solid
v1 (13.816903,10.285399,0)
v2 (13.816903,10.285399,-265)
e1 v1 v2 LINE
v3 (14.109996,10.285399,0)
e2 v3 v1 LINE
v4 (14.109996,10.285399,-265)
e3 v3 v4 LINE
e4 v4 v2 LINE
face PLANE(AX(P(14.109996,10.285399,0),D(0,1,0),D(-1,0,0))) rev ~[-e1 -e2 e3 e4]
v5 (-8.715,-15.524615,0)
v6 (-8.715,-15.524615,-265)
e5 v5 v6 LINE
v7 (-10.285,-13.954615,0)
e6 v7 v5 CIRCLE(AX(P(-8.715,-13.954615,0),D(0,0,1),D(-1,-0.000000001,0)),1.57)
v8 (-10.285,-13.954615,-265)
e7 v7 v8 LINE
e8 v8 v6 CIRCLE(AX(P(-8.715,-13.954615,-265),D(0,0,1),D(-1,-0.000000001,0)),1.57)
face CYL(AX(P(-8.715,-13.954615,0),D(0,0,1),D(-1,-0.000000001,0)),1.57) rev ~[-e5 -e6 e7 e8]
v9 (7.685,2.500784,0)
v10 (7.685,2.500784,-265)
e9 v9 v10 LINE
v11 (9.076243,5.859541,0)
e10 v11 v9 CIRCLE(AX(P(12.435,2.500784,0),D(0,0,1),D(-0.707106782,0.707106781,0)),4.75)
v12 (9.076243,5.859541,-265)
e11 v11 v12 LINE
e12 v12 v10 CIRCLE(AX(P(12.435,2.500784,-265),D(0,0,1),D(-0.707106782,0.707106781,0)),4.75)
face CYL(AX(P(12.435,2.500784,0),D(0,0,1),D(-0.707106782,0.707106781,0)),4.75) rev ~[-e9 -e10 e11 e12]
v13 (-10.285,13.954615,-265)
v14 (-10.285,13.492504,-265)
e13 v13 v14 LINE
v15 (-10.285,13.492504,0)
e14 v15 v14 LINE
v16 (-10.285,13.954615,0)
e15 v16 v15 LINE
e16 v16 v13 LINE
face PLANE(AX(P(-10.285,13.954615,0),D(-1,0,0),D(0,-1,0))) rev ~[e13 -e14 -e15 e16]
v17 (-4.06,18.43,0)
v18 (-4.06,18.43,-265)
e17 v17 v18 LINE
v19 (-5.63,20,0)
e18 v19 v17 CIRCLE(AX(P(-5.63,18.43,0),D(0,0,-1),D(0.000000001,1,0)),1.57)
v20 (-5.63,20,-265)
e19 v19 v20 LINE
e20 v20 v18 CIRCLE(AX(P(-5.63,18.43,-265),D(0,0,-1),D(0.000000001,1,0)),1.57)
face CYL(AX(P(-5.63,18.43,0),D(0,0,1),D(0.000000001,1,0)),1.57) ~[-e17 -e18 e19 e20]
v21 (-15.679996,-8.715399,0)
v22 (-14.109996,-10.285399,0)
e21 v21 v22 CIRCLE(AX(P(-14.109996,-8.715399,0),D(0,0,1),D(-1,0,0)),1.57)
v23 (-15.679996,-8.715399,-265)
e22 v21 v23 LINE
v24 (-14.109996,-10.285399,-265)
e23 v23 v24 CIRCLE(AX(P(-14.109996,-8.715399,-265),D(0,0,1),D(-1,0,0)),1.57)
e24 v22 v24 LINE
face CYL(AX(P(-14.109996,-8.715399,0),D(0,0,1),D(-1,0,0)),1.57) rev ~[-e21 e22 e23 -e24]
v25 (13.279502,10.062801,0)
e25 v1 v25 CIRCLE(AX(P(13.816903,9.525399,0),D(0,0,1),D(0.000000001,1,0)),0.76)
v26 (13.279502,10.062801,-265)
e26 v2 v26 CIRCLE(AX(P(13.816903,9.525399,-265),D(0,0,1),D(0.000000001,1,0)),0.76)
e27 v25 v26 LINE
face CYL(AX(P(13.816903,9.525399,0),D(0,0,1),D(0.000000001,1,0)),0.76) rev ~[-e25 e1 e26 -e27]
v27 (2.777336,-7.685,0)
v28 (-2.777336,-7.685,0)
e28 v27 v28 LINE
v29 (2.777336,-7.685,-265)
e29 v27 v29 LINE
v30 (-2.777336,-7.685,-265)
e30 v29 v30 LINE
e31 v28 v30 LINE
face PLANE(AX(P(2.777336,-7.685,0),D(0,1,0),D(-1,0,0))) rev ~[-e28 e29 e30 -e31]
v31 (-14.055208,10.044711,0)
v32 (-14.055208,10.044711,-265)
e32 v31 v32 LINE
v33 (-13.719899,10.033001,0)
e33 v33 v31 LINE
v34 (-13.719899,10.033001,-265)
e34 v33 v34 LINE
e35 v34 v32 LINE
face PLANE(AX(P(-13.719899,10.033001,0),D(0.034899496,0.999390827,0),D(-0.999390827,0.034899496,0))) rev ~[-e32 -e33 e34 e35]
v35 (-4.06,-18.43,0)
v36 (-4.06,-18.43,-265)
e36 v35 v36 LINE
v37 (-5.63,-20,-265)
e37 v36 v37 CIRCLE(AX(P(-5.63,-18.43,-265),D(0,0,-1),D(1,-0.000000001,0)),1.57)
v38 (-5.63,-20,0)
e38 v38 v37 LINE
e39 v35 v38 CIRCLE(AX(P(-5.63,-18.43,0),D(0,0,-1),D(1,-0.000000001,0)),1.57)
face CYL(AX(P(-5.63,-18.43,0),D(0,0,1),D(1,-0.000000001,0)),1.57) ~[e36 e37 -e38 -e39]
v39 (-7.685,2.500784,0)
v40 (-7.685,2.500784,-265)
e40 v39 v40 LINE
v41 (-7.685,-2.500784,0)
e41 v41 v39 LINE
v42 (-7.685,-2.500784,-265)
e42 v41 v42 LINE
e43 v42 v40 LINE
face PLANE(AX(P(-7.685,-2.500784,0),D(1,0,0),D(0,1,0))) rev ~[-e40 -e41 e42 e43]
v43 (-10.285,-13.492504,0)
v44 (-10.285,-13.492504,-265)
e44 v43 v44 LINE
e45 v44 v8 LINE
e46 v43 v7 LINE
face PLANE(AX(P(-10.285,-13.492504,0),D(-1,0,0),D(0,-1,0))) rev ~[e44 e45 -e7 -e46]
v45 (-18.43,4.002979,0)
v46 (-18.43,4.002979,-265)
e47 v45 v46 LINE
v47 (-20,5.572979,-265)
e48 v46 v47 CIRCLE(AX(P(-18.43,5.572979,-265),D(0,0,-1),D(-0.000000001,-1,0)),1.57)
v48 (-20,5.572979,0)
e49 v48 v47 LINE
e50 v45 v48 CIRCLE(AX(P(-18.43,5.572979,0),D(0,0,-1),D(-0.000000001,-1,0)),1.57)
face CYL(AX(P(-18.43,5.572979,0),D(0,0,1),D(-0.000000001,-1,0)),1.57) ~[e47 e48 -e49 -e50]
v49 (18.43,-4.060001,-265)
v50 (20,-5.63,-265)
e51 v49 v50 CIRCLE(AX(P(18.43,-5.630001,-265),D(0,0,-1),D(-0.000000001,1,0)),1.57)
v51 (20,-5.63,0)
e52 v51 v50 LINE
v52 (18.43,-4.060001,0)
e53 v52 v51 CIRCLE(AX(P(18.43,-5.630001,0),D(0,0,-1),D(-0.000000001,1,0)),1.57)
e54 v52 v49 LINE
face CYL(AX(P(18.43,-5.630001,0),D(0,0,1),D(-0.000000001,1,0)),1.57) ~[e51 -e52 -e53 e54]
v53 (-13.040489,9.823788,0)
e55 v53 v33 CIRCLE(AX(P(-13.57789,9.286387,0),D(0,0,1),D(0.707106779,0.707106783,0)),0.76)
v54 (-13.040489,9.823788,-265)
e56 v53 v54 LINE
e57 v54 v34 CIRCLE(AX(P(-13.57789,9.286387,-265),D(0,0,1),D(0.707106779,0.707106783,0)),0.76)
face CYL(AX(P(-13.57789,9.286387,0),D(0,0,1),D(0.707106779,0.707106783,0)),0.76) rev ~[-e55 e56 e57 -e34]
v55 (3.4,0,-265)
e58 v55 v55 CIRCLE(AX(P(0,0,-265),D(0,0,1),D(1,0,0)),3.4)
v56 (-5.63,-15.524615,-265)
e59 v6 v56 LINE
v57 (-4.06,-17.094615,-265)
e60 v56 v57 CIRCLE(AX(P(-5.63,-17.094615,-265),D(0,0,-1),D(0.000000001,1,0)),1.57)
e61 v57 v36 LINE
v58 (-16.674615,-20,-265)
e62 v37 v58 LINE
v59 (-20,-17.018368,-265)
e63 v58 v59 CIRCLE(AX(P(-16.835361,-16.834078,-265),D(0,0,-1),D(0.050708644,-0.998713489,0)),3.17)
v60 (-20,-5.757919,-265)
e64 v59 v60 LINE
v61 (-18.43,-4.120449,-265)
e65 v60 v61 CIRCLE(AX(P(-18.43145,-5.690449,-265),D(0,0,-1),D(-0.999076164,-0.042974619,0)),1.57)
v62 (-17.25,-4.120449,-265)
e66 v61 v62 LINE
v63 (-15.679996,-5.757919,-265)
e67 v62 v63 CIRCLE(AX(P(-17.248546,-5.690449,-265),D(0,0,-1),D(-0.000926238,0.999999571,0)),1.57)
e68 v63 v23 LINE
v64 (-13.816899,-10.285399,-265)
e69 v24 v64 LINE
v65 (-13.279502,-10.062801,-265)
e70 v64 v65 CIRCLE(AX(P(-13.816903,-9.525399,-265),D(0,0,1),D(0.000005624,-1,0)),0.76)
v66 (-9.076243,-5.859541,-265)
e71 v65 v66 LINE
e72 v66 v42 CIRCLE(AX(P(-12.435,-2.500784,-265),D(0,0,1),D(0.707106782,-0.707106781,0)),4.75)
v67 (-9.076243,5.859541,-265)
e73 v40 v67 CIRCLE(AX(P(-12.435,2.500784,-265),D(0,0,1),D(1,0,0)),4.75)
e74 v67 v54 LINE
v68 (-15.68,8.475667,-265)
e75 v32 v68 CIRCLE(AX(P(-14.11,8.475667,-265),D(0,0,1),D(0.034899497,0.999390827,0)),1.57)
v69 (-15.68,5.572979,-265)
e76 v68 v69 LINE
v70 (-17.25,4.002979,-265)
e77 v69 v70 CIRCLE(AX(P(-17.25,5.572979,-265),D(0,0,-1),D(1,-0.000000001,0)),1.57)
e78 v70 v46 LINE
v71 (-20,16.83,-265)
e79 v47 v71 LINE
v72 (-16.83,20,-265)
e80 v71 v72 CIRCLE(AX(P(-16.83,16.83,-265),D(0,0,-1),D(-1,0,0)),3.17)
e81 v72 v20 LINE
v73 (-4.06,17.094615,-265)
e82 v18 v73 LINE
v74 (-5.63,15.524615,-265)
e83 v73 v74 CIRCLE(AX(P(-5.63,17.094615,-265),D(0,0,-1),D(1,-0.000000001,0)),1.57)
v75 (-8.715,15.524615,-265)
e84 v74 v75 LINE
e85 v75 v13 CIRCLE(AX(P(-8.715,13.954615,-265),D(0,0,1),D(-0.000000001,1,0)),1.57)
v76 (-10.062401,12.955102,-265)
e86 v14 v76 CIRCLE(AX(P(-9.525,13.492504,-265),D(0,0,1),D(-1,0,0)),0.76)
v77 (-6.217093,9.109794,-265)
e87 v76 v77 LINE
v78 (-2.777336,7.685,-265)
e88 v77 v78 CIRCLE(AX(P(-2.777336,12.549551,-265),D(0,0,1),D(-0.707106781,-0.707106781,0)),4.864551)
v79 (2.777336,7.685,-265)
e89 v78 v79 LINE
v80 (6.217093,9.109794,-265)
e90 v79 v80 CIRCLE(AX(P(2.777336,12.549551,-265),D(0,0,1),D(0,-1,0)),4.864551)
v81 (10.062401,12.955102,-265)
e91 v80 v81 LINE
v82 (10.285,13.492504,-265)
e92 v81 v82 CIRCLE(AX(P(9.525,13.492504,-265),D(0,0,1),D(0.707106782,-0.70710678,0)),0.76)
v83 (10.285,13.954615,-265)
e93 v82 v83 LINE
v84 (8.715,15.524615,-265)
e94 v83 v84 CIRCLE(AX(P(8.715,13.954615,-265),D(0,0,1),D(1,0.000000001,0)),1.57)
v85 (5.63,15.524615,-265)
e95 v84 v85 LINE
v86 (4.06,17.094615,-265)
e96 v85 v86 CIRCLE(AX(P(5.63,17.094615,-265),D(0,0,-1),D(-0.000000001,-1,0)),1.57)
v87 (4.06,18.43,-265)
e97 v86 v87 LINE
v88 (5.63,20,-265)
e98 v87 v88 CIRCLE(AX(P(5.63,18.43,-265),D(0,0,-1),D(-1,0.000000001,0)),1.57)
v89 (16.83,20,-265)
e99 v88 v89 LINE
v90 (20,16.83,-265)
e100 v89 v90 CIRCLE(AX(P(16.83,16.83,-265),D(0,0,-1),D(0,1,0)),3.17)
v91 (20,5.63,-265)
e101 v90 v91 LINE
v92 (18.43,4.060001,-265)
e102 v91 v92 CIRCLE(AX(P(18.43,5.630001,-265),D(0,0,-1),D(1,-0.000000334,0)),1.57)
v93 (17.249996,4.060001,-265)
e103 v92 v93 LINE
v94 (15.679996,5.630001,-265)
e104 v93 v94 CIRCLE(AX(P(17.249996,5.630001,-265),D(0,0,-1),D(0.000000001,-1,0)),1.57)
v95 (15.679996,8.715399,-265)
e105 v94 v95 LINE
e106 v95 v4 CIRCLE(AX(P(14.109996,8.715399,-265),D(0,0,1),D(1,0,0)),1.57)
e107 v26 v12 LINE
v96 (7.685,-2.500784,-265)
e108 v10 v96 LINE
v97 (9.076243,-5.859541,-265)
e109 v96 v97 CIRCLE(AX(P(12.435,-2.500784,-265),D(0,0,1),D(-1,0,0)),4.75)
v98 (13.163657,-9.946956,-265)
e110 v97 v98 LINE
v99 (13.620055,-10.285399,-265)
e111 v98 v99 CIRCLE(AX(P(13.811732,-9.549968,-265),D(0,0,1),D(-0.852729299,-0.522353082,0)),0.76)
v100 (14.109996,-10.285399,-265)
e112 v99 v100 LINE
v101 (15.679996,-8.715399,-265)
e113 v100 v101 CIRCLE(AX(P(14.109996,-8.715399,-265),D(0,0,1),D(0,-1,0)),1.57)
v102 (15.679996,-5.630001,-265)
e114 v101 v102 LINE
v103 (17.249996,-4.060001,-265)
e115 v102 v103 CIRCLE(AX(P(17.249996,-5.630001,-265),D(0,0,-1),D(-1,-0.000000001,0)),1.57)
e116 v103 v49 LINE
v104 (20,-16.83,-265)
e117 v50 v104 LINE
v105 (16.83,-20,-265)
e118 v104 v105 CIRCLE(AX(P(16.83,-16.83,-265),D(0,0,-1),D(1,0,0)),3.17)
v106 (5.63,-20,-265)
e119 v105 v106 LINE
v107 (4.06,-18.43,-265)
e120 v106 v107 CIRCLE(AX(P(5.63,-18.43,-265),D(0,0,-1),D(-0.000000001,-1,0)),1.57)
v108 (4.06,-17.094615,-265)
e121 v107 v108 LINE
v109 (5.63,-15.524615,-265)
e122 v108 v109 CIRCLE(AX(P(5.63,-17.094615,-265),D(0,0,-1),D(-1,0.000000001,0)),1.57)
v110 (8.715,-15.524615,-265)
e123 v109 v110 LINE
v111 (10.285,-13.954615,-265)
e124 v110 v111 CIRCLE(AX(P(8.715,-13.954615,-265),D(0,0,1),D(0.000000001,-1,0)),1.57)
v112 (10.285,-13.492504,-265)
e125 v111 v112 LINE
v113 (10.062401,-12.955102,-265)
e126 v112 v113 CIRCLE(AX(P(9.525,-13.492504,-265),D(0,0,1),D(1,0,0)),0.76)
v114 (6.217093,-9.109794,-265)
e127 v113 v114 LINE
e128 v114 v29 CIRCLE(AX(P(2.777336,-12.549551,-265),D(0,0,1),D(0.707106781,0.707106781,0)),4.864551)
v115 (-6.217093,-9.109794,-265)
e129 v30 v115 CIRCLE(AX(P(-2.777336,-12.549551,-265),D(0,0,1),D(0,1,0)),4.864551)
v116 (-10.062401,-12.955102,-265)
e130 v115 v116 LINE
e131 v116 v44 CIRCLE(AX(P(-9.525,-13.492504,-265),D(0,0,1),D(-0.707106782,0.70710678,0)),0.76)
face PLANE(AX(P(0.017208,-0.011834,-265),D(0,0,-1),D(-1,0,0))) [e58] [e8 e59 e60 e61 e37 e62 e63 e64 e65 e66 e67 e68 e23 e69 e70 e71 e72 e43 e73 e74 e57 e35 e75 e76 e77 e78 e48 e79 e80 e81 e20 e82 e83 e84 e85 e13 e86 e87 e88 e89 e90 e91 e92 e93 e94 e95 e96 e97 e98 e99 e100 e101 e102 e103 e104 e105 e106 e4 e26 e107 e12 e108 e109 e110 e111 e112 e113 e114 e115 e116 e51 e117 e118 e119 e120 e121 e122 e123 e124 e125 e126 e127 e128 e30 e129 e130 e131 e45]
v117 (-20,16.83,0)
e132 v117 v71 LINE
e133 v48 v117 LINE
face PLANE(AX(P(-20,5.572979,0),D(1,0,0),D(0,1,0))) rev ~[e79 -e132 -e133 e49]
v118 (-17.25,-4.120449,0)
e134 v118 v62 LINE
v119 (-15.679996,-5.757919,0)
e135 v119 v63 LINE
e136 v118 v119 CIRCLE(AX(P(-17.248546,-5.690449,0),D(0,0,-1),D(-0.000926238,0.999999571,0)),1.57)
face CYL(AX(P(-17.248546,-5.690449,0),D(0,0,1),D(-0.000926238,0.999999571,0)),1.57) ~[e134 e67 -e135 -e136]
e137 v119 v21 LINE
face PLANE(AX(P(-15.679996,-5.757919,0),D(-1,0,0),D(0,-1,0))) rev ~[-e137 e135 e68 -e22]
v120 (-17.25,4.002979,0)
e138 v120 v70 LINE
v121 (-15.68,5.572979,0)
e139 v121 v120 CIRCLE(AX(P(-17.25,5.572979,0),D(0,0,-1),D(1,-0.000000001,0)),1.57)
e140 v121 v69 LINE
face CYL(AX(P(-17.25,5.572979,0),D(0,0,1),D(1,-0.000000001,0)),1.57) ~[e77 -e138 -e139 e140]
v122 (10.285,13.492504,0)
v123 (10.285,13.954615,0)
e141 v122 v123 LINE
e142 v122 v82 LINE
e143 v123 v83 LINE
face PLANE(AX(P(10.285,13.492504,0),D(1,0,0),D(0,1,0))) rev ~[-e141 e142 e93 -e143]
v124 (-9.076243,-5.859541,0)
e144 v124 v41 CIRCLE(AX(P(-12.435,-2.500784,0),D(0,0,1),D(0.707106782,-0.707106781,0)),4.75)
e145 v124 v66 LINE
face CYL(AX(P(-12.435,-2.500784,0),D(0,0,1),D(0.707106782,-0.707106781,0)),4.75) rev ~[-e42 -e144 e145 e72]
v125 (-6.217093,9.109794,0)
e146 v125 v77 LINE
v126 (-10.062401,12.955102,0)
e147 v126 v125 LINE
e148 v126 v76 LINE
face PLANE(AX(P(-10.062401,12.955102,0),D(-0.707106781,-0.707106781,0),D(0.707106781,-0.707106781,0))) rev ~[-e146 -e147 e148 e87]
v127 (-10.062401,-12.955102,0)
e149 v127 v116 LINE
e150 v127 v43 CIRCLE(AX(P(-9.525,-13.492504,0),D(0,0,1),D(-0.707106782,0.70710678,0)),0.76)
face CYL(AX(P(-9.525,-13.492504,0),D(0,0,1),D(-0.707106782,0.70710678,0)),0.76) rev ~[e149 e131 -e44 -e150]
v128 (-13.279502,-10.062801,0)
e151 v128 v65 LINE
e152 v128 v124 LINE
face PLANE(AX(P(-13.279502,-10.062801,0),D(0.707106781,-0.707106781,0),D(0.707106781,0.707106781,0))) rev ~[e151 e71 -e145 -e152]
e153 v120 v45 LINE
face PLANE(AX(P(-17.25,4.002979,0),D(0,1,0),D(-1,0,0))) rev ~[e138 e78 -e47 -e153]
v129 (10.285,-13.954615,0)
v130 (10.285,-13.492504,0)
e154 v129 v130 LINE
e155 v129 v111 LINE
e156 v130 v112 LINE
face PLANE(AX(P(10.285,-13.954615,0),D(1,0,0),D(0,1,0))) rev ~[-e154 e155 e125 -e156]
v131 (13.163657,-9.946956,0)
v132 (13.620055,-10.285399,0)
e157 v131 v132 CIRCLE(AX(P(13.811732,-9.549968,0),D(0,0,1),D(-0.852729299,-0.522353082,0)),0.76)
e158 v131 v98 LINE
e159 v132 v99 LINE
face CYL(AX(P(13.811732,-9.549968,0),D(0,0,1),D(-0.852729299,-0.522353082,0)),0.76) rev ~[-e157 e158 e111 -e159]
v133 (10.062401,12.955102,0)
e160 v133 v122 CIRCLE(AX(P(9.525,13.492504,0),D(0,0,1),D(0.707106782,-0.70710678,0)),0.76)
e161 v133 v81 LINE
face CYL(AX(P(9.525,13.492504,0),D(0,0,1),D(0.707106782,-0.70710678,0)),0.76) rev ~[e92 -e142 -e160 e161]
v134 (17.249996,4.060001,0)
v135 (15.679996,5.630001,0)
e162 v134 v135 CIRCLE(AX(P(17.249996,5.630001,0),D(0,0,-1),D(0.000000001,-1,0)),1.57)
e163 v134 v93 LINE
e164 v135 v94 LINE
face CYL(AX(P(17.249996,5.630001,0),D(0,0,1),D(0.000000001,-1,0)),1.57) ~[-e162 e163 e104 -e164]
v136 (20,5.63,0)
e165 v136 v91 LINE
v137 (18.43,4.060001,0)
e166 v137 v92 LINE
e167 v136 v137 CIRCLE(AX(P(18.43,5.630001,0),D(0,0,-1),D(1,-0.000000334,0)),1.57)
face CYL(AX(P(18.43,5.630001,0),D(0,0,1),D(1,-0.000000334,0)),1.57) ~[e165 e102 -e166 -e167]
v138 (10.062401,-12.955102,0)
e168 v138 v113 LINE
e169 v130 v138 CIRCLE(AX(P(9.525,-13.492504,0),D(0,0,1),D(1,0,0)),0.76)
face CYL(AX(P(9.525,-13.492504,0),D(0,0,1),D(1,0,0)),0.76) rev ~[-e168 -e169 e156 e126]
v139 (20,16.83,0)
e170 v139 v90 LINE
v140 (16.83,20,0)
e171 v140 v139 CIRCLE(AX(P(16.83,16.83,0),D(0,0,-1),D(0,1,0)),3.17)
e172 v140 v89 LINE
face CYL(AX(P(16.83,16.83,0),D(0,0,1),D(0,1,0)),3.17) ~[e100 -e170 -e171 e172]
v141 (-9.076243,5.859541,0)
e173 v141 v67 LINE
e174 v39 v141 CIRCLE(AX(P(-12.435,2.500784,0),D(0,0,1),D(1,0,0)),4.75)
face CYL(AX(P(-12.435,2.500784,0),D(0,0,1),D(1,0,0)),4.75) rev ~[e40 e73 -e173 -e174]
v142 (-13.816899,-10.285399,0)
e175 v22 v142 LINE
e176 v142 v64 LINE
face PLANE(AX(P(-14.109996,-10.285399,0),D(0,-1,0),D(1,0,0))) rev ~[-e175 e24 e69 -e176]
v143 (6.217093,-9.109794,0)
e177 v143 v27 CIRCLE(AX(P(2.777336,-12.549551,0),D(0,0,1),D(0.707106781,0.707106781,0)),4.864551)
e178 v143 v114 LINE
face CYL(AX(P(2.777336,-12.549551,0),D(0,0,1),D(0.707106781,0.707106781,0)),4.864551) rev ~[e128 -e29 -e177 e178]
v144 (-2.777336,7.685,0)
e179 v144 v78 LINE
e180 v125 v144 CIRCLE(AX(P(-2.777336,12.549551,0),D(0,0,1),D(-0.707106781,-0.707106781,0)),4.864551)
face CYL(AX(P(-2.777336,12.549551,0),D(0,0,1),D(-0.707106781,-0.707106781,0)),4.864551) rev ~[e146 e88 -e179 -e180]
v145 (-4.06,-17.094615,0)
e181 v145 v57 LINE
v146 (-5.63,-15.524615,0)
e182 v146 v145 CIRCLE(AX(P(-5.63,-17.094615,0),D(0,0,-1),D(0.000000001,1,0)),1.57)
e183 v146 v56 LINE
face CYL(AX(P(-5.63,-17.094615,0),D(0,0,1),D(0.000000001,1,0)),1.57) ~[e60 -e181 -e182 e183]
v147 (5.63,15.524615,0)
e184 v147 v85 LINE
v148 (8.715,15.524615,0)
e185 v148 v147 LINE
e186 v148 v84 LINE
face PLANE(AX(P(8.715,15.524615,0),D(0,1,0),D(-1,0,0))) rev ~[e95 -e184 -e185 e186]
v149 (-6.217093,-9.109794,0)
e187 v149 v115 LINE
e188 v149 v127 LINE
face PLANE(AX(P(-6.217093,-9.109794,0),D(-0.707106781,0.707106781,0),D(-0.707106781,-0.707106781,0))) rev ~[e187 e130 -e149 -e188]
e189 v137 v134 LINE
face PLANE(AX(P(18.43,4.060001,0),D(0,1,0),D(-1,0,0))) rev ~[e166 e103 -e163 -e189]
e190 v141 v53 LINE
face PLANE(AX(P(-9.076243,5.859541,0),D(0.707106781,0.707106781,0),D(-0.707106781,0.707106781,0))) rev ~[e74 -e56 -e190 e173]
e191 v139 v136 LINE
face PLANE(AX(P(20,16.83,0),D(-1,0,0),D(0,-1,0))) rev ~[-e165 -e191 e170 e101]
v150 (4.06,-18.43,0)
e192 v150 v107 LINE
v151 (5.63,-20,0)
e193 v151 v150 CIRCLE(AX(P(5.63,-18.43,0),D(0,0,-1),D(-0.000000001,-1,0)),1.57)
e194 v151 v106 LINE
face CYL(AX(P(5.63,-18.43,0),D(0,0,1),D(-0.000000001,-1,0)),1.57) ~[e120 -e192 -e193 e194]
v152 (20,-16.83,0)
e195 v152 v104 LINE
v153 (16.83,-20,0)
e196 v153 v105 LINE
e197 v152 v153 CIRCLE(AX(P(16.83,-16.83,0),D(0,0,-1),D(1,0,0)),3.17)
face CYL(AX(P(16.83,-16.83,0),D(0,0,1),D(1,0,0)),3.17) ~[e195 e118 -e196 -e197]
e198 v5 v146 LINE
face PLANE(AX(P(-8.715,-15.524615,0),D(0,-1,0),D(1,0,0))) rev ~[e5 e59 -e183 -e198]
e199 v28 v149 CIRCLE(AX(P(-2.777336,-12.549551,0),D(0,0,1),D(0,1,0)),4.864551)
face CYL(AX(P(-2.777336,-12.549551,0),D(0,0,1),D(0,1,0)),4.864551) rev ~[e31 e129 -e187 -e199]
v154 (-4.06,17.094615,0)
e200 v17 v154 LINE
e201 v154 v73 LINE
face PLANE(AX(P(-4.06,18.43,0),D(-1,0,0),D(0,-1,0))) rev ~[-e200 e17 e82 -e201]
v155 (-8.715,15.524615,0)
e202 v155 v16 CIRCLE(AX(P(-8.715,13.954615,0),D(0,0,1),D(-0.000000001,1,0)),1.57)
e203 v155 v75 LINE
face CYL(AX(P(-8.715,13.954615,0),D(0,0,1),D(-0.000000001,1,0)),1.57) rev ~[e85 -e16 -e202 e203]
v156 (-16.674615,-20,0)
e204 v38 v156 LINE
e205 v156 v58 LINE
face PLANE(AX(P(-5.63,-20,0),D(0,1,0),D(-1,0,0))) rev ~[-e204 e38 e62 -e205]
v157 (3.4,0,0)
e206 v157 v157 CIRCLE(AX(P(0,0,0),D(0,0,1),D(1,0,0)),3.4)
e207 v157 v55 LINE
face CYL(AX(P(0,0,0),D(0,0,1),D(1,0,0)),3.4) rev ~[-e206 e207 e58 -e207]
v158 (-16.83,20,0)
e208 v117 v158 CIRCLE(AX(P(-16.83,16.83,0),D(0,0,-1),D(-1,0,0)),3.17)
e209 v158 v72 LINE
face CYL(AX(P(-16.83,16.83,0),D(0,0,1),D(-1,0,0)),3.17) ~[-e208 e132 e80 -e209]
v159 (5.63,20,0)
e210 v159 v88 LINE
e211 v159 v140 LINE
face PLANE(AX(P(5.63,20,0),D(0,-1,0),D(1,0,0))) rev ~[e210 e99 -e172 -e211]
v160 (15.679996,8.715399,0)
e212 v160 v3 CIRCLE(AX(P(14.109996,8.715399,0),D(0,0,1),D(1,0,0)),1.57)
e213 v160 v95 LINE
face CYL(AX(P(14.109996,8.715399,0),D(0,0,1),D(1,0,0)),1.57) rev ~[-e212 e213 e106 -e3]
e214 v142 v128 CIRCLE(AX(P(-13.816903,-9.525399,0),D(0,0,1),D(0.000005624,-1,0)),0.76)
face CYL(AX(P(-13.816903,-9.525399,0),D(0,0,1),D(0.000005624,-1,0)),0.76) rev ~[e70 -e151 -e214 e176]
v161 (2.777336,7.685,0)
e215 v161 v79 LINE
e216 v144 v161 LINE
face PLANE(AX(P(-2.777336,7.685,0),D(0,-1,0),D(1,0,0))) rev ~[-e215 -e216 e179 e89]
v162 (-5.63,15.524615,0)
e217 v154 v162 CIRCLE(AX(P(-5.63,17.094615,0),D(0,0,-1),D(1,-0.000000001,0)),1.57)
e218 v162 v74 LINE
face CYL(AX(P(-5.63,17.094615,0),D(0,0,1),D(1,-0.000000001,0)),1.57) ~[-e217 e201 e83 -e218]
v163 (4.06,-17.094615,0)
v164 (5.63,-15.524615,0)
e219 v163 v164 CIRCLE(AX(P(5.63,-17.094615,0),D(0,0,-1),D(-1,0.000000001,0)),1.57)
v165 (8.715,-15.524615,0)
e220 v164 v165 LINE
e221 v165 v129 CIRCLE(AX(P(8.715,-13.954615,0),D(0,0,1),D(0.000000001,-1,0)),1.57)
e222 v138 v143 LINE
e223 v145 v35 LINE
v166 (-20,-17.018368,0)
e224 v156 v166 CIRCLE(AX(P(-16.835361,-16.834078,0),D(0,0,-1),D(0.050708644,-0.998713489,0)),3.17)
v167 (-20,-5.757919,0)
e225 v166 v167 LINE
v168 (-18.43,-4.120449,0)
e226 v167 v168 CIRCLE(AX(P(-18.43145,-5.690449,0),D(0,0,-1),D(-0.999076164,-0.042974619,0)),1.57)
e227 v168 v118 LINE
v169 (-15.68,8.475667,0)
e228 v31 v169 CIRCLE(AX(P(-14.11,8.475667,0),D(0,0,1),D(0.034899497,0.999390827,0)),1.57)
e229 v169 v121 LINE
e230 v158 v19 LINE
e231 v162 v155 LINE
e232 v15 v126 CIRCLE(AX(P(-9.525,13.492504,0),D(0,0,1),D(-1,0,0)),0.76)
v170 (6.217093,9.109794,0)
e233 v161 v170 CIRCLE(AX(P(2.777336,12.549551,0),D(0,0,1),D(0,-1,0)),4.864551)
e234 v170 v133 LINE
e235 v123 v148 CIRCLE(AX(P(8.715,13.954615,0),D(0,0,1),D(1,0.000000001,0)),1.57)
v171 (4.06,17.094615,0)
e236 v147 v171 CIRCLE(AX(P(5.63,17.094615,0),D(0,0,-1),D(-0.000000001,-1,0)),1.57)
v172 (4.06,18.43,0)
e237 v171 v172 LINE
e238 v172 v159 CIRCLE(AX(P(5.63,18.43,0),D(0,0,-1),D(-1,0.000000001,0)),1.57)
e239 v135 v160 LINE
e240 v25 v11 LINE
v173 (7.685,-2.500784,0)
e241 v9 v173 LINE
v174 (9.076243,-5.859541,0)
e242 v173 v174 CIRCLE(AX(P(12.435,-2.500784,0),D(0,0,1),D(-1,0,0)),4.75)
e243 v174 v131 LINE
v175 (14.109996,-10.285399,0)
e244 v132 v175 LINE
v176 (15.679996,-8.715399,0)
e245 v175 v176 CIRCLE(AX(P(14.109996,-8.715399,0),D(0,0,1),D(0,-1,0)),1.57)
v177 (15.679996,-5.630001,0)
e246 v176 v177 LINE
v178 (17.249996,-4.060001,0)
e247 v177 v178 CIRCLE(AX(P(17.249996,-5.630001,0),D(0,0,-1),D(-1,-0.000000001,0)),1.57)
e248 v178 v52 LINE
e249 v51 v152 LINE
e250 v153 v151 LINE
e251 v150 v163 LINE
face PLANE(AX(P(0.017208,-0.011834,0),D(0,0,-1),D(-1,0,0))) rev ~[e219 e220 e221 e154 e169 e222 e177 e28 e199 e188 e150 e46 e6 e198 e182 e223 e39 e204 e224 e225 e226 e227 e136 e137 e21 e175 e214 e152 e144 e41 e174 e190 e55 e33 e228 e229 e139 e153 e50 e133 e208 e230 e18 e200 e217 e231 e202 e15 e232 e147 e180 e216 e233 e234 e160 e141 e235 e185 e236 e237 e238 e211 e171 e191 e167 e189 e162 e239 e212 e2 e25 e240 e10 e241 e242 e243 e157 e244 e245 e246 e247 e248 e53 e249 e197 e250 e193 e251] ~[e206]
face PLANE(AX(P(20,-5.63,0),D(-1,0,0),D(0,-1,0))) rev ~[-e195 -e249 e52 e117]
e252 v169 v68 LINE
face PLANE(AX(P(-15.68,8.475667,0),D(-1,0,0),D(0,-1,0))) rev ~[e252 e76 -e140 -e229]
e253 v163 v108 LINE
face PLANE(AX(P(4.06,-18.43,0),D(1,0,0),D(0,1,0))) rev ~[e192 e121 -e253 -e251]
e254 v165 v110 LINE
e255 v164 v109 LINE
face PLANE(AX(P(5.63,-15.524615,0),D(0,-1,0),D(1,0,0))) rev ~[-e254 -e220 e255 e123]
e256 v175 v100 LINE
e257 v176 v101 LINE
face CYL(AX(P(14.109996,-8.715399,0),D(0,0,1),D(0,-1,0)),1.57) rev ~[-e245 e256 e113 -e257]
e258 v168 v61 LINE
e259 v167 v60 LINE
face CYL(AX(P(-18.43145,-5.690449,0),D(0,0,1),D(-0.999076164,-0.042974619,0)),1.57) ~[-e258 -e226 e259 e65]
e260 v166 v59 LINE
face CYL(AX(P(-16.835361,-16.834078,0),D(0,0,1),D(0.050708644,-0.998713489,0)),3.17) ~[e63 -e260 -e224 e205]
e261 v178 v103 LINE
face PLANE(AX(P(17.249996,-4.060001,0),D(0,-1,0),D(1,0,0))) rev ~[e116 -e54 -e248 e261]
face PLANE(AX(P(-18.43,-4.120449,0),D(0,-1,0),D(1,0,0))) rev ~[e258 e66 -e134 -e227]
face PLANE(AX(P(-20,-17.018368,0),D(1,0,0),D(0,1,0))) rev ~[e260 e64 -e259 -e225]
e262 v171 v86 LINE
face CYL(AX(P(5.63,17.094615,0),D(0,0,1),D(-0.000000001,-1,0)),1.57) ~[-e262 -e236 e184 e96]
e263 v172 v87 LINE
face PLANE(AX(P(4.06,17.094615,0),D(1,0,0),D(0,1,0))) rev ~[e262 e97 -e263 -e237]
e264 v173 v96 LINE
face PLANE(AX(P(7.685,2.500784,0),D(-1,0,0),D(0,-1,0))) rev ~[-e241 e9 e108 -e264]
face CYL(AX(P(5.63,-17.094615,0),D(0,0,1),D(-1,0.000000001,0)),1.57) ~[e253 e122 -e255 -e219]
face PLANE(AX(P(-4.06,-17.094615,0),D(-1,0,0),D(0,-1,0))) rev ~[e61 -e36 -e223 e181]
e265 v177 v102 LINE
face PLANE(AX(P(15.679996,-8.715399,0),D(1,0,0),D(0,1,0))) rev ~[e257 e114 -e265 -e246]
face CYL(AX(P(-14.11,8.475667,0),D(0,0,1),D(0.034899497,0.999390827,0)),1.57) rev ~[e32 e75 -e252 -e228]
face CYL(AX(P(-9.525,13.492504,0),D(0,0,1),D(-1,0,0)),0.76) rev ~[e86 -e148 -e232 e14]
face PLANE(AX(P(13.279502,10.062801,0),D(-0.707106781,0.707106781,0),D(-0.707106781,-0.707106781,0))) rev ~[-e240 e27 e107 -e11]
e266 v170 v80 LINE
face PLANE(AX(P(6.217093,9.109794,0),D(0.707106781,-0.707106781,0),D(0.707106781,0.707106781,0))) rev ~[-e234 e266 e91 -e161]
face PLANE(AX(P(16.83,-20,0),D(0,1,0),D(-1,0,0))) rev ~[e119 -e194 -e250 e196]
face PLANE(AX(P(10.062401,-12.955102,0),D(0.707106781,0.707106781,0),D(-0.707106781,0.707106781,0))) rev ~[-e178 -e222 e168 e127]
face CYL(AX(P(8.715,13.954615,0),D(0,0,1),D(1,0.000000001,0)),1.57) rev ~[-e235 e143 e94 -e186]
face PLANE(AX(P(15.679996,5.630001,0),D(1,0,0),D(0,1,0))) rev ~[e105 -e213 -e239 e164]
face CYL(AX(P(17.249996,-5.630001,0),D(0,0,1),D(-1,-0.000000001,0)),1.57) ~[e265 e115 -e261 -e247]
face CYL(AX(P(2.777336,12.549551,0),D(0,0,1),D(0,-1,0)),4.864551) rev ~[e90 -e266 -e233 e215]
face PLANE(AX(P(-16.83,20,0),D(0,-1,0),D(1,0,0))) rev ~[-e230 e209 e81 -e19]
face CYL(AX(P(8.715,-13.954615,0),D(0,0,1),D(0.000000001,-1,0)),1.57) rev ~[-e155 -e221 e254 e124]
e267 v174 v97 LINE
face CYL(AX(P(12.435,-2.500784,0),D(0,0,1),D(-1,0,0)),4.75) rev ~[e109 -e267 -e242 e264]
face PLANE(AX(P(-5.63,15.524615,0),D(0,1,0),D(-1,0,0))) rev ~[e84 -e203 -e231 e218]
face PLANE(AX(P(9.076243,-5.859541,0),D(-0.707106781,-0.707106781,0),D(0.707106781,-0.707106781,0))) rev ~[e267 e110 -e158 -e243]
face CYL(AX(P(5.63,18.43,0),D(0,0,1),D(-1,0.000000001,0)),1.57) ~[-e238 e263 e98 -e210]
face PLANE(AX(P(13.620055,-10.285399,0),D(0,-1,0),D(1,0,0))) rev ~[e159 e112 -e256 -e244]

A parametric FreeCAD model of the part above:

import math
import FreeCAD as App
import Part
import Sketcher

V = App.Vector
Q = App.Units.Quantity

doc = App.newDocument("Part")
params = doc.addObject("Spreadsheet::Sheet", "Params")
for row, (alias, value) in enumerate([
    ("sketch1_diameter", "6.8 mm"),
    ("sketch1_radius", "1.57 mm"),
    ("sketch1_radius2", "0.76 mm"),
    ("sketch1_radius3", "3.17 mm"),
    ("sketch1_radius4", "4.75 mm"),
    ("pad1_length", "265 mm"),
], start=1):
    params.set(f"A{row}", alias)
    params.set(f"B{row}", "=" + value)
    params.setAlias(f"B{row}", alias)

body = doc.addObject("PartDesign::Body", "Body")

# Sketch on XY plane
sketch1 = body.newObject("Sketcher::SketchObject", "Sketch")
sketch1.AttachmentSupport = (doc.getObject("XY_Plane"), [""])
sketch1.MapMode = "FlatFace"
sketch1.addGeometry([
    Part.LineSegment(V(-5.63, -15.52, 0), V(-8.71, -15.52, 0)),  # 0
    Part.ArcOfCircle(Part.Circle(V(-8.71, -13.95, 0), V(0, 0, 1), 1.57), math.radians(-180), math.radians(-90)),  # 1
    Part.LineSegment(V(-10.29, -13.95, 0), V(-10.29, -13.49, 0)),  # 2
    Part.ArcOfCircle(Part.Circle(V(-9.52, -13.49, 0), V(0, 0, 1), 0.76), math.radians(135), math.radians(180)),  # 3
    Part.LineSegment(V(-10.06, -12.96, 0), V(-6.22, -9.11, 0)),  # 4
    Part.ArcOfCircle(Part.Circle(V(-2.78, -12.55, 0), V(0, 0, 1), 4.86), math.radians(90), math.radians(135)),  # 5
    Part.LineSegment(V(-2.78, -7.68, 0), V(2.78, -7.68, 0)),  # 6
    Part.ArcOfCircle(Part.Circle(V(2.78, -12.55, 0), V(0, 0, 1), 4.86), math.radians(45), math.radians(90)),  # 7
    Part.LineSegment(V(6.22, -9.11, 0), V(10.06, -12.96, 0)),  # 8
    Part.ArcOfCircle(Part.Circle(V(9.52, -13.49, 0), V(0, 0, 1), 0.76), math.radians(0), math.radians(45)),  # 9
    Part.LineSegment(V(10.29, -13.49, 0), V(10.29, -13.95, 0)),  # 10
    Part.ArcOfCircle(Part.Circle(V(8.71, -13.95, 0), V(0, 0, 1), 1.57), math.radians(-90), math.radians(0)),  # 11
    Part.LineSegment(V(8.71, -15.52, 0), V(5.63, -15.52, 0)),  # 12
    Part.ArcOfCircle(Part.Circle(V(5.63, -17.09, 0), V(0, 0, 1), 1.57), math.radians(90), math.radians(180)),  # 13
    Part.LineSegment(V(4.06, -17.09, 0), V(4.06, -18.43, 0)),  # 14
    Part.ArcOfCircle(Part.Circle(V(5.63, -18.43, 0), V(0, 0, 1), 1.57), math.radians(-180), math.radians(-90)),  # 15
    Part.LineSegment(V(5.63, -20, 0), V(16.83, -20, 0)),  # 16
    Part.ArcOfCircle(Part.Circle(V(16.83, -16.83, 0), V(0, 0, 1), 3.17), math.radians(-90), math.radians(0)),  # 17
    Part.LineSegment(V(20, -16.83, 0), V(20, -5.63, 0)),  # 18
    Part.ArcOfCircle(Part.Circle(V(18.43, -5.63, 0), V(0, 0, 1), 1.57), math.radians(0), math.radians(90)),  # 19
    Part.LineSegment(V(18.43, -4.06, 0), V(17.25, -4.06, 0)),  # 20
    Part.ArcOfCircle(Part.Circle(V(17.25, -5.63, 0), V(0, 0, 1), 1.57), math.radians(90), math.radians(180)),  # 21
    Part.LineSegment(V(15.68, -5.63, 0), V(15.68, -8.72, 0)),  # 22
    Part.ArcOfCircle(Part.Circle(V(14.11, -8.72, 0), V(0, 0, 1), 1.57), math.radians(-90), math.radians(0)),  # 23
    Part.LineSegment(V(14.11, -10.29, 0), V(13.62, -10.29, 0)),  # 24
    Part.ArcOfCircle(Part.Circle(V(13.81, -9.55, 0), V(0, 0, 1), 0.76), math.radians(-149), math.radians(-105)),  # 25
    Part.LineSegment(V(13.16, -9.95, 0), V(9.08, -5.86, 0)),  # 26
    Part.ArcOfCircle(Part.Circle(V(12.44, -2.5, 0), V(0, 0, 1), 4.75), math.radians(-180), math.radians(-135)),  # 27
    Part.LineSegment(V(7.68, -2.5, 0), V(7.68, 2.5, 0)),  # 28
    Part.ArcOfCircle(Part.Circle(V(12.44, 2.5, 0), V(0, 0, 1), 4.75), math.radians(135), math.radians(180)),  # 29
    Part.LineSegment(V(9.08, 5.86, 0), V(13.28, 10.06, 0)),  # 30
    Part.ArcOfCircle(Part.Circle(V(13.82, 9.53, 0), V(0, 0, 1), 0.76), math.radians(90), math.radians(135)),  # 31
    Part.LineSegment(V(13.82, 10.29, 0), V(14.11, 10.29, 0)),  # 32
    Part.ArcOfCircle(Part.Circle(V(14.11, 8.72, 0), V(0, 0, 1), 1.57), math.radians(0), math.radians(90)),  # 33
    Part.LineSegment(V(15.68, 8.72, 0), V(15.68, 5.63, 0)),  # 34
    Part.ArcOfCircle(Part.Circle(V(17.25, 5.63, 0), V(0, 0, 1), 1.57), math.radians(180), math.radians(270)),  # 35
    Part.LineSegment(V(17.25, 4.06, 0), V(18.43, 4.06, 0)),  # 36
    Part.ArcOfCircle(Part.Circle(V(18.43, 5.63, 0), V(0, 0, 1), 1.57), math.radians(-90), math.radians(0)),  # 37
    Part.LineSegment(V(20, 5.63, 0), V(20, 16.83, 0)),  # 38
    Part.ArcOfCircle(Part.Circle(V(16.83, 16.83, 0), V(0, 0, 1), 3.17), math.radians(0), math.radians(90)),  # 39
    Part.LineSegment(V(16.83, 20, 0), V(5.63, 20, 0)),  # 40
    Part.ArcOfCircle(Part.Circle(V(5.63, 18.43, 0), V(0, 0, 1), 1.57), math.radians(90), math.radians(180)),  # 41
    Part.LineSegment(V(4.06, 18.43, 0), V(4.06, 17.09, 0)),  # 42
    Part.ArcOfCircle(Part.Circle(V(5.63, 17.09, 0), V(0, 0, 1), 1.57), math.radians(-180), math.radians(-90)),  # 43
    Part.LineSegment(V(5.63, 15.52, 0), V(8.71, 15.52, 0)),  # 44
    Part.ArcOfCircle(Part.Circle(V(8.71, 13.95, 0), V(0, 0, 1), 1.57), math.radians(0), math.radians(90)),  # 45
    Part.LineSegment(V(10.29, 13.95, 0), V(10.29, 13.49, 0)),  # 46
    Part.ArcOfCircle(Part.Circle(V(9.52, 13.49, 0), V(0, 0, 1), 0.76), math.radians(-45), math.radians(0)),  # 47
    Part.LineSegment(V(10.06, 12.96, 0), V(6.22, 9.11, 0)),  # 48
    Part.ArcOfCircle(Part.Circle(V(2.78, 12.55, 0), V(0, 0, 1), 4.86), math.radians(-90), math.radians(-45)),  # 49
    Part.LineSegment(V(2.78, 7.68, 0), V(-2.78, 7.68, 0)),  # 50
    Part.ArcOfCircle(Part.Circle(V(-2.78, 12.55, 0), V(0, 0, 1), 4.86), math.radians(-135), math.radians(-90)),  # 51
    Part.LineSegment(V(-6.22, 9.11, 0), V(-10.06, 12.96, 0)),  # 52
    Part.ArcOfCircle(Part.Circle(V(-9.52, 13.49, 0), V(0, 0, 1), 0.76), math.radians(180), math.radians(225)),  # 53
    Part.LineSegment(V(-10.29, 13.49, 0), V(-10.29, 13.95, 0)),  # 54
    Part.ArcOfCircle(Part.Circle(V(-8.71, 13.95, 0), V(0, 0, 1), 1.57), math.radians(90), math.radians(180)),  # 55
    Part.LineSegment(V(-8.71, 15.52, 0), V(-5.63, 15.52, 0)),  # 56
    Part.ArcOfCircle(Part.Circle(V(-5.63, 17.09, 0), V(0, 0, 1), 1.57), math.radians(-90), math.radians(0)),  # 57
    Part.LineSegment(V(-4.06, 17.09, 0), V(-4.06, 18.43, 0)),  # 58
    Part.ArcOfCircle(Part.Circle(V(-5.63, 18.43, 0), V(0, 0, 1), 1.57), math.radians(0), math.radians(90)),  # 59
    Part.LineSegment(V(-5.63, 20, 0), V(-16.83, 20, 0)),  # 60
    Part.ArcOfCircle(Part.Circle(V(-16.83, 16.83, 0), V(0, 0, 1), 3.17), math.radians(90), math.radians(180)),  # 61
    Part.LineSegment(V(-20, 16.83, 0), V(-20, 5.57, 0)),  # 62
    Part.ArcOfCircle(Part.Circle(V(-18.43, 5.57, 0), V(0, 0, 1), 1.57), math.radians(-180), math.radians(-90)),  # 63
    Part.LineSegment(V(-18.43, 4, 0), V(-17.25, 4, 0)),  # 64
    Part.ArcOfCircle(Part.Circle(V(-17.25, 5.57, 0), V(0, 0, 1), 1.57), math.radians(-90), math.radians(0)),  # 65
    Part.LineSegment(V(-15.68, 5.57, 0), V(-15.68, 8.48, 0)),  # 66
    Part.ArcOfCircle(Part.Circle(V(-14.11, 8.48, 0), V(0, 0, 1), 1.57), math.radians(88), math.radians(180)),  # 67
    Part.LineSegment(V(-14.06, 10.04, 0), V(-13.72, 10.03, 0)),  # 68
    Part.ArcOfCircle(Part.Circle(V(-13.58, 9.29, 0), V(0, 0, 1), 0.76), math.radians(45), math.radians(101)),  # 69
    Part.LineSegment(V(-13.04, 9.82, 0), V(-9.08, 5.86, 0)),  # 70
    Part.ArcOfCircle(Part.Circle(V(-12.44, 2.5, 0), V(0, 0, 1), 4.75), math.radians(0), math.radians(45)),  # 71
    Part.LineSegment(V(-7.68, 2.5, 0), V(-7.68, -2.5, 0)),  # 72
    Part.ArcOfCircle(Part.Circle(V(-12.44, -2.5, 0), V(0, 0, 1), 4.75), math.radians(-45), math.radians(0)),  # 73
    Part.LineSegment(V(-9.08, -5.86, 0), V(-13.28, -10.06, 0)),  # 74
    Part.ArcOfCircle(Part.Circle(V(-13.82, -9.53, 0), V(0, 0, 1), 0.76), math.radians(-90), math.radians(-45)),  # 75
    Part.LineSegment(V(-13.82, -10.29, 0), V(-14.11, -10.29, 0)),  # 76
    Part.ArcOfCircle(Part.Circle(V(-14.11, -8.72, 0), V(0, 0, 1), 1.57), math.radians(180), math.radians(270)),  # 77
    Part.LineSegment(V(-15.68, -8.72, 0), V(-15.68, -5.76, 0)),  # 78
    Part.ArcOfCircle(Part.Circle(V(-17.25, -5.69, 0), V(0, 0, 1), 1.57), math.radians(-2), math.radians(90)),  # 79
    Part.LineSegment(V(-17.25, -4.12, 0), V(-18.43, -4.12, 0)),  # 80
    Part.ArcOfCircle(Part.Circle(V(-18.43, -5.69, 0), V(0, 0, 1), 1.57), math.radians(90), math.radians(182)),  # 81
    Part.LineSegment(V(-20, -5.76, 0), V(-20, -17.02, 0)),  # 82
    Part.ArcOfCircle(Part.Circle(V(-16.84, -16.83, 0), V(0, 0, 1), 3.17), math.radians(-177), math.radians(-87)),  # 83
    Part.LineSegment(V(-16.67, -20, 0), V(-5.63, -20, 0)),  # 84
    Part.ArcOfCircle(Part.Circle(V(-5.63, -18.43, 0), V(0, 0, 1), 1.57), math.radians(-90), math.radians(0)),  # 85
    Part.LineSegment(V(-4.06, -18.43, 0), V(-4.06, -17.09, 0)),  # 86
    Part.ArcOfCircle(Part.Circle(V(-5.63, -17.09, 0), V(0, 0, 1), 1.57), math.radians(0), math.radians(90)),  # 87
    Part.Circle(V(0, 0, 0), V(0, 0, 1), 3.4),  # 88
], False)
sketch1.addConstraint([
    Sketcher.Constraint("Tangent", 0, 2, 1, 2),
    Sketcher.Constraint("Tangent", 1, 1, 2, 1),
    Sketcher.Constraint("Tangent", 2, 2, 3, 2),
    Sketcher.Constraint("Tangent", 3, 1, 4, 1),
    Sketcher.Constraint("Tangent", 4, 2, 5, 2),
    Sketcher.Constraint("Tangent", 5, 1, 6, 1),
    Sketcher.Constraint("Tangent", 6, 2, 7, 2),
    Sketcher.Constraint("Tangent", 7, 1, 8, 1),
    Sketcher.Constraint("Tangent", 8, 2, 9, 2),
    Sketcher.Constraint("Tangent", 9, 1, 10, 1),
    Sketcher.Constraint("Tangent", 10, 2, 11, 2),
    Sketcher.Constraint("Tangent", 11, 1, 12, 1),
    Sketcher.Constraint("Tangent", 12, 2, 13, 1),
    Sketcher.Constraint("Tangent", 13, 2, 14, 1),
    Sketcher.Constraint("Tangent", 14, 2, 15, 1),
    Sketcher.Constraint("Tangent", 15, 2, 16, 1),
    Sketcher.Constraint("Tangent", 16, 2, 17, 1),
    Sketcher.Constraint("Tangent", 17, 2, 18, 1),
    Sketcher.Constraint("Tangent", 18, 2, 19, 1),
    Sketcher.Constraint("Tangent", 19, 2, 20, 1),
    Sketcher.Constraint("Tangent", 20, 2, 21, 1),
    Sketcher.Constraint("Tangent", 21, 2, 22, 1),
    Sketcher.Constraint("Tangent", 22, 2, 23, 2),
    Sketcher.Constraint("Tangent", 23, 1, 24, 1),
    Sketcher.Constraint("Coincident", 24, 2, 25, 2),
    Sketcher.Constraint("Coincident", 25, 1, 26, 1),
    Sketcher.Constraint("Tangent", 26, 2, 27, 2),
    Sketcher.Constraint("Tangent", 27, 1, 28, 1),
    Sketcher.Constraint("Tangent", 28, 2, 29, 2),
    Sketcher.Constraint("Tangent", 29, 1, 30, 1),
    Sketcher.Constraint("Tangent", 30, 2, 31, 2),
    Sketcher.Constraint("Tangent", 31, 1, 32, 1),
    Sketcher.Constraint("Tangent", 32, 2, 33, 2),
    Sketcher.Constraint("Tangent", 33, 1, 34, 1),
    Sketcher.Constraint("Tangent", 34, 2, 35, 1),
    Sketcher.Constraint("Tangent", 35, 2, 36, 1),
    Sketcher.Constraint("Tangent", 36, 2, 37, 1),
    Sketcher.Constraint("Tangent", 37, 2, 38, 1),
    Sketcher.Constraint("Tangent", 38, 2, 39, 1),
    Sketcher.Constraint("Tangent", 39, 2, 40, 1),
    Sketcher.Constraint("Tangent", 40, 2, 41, 1),
    Sketcher.Constraint("Tangent", 41, 2, 42, 1),
    Sketcher.Constraint("Tangent", 42, 2, 43, 1),
    Sketcher.Constraint("Tangent", 43, 2, 44, 1),
    Sketcher.Constraint("Tangent", 44, 2, 45, 2),
    Sketcher.Constraint("Tangent", 45, 1, 46, 1),
    Sketcher.Constraint("Tangent", 46, 2, 47, 2),
    Sketcher.Constraint("Tangent", 47, 1, 48, 1),
    Sketcher.Constraint("Tangent", 48, 2, 49, 2),
    Sketcher.Constraint("Tangent", 49, 1, 50, 1),
    Sketcher.Constraint("Tangent", 50, 2, 51, 2),
    Sketcher.Constraint("Tangent", 51, 1, 52, 1),
    Sketcher.Constraint("Tangent", 52, 2, 53, 2),
    Sketcher.Constraint("Tangent", 53, 1, 54, 1),
    Sketcher.Constraint("Tangent", 54, 2, 55, 2),
    Sketcher.Constraint("Tangent", 55, 1, 56, 1),
    Sketcher.Constraint("Tangent", 56, 2, 57, 1),
    Sketcher.Constraint("Tangent", 57, 2, 58, 1),
    Sketcher.Constraint("Tangent", 58, 2, 59, 1),
    Sketcher.Constraint("Tangent", 59, 2, 60, 1),
    Sketcher.Constraint("Tangent", 60, 2, 61, 1),
    Sketcher.Constraint("Tangent", 61, 2, 62, 1),
    Sketcher.Constraint("Tangent", 62, 2, 63, 1),
    Sketcher.Constraint("Tangent", 63, 2, 64, 1),
    Sketcher.Constraint("Tangent", 64, 2, 65, 1),
    Sketcher.Constraint("Tangent", 65, 2, 66, 1),
    Sketcher.Constraint("Tangent", 66, 2, 67, 2),
    Sketcher.Constraint("Tangent", 67, 1, 68, 1),
    Sketcher.Constraint("Coincident", 68, 2, 69, 2),
    Sketcher.Constraint("Tangent", 69, 1, 70, 1),
    Sketcher.Constraint("Tangent", 70, 2, 71, 2),
    Sketcher.Constraint("Tangent", 71, 1, 72, 1),
    Sketcher.Constraint("Tangent", 72, 2, 73, 2),
    Sketcher.Constraint("Tangent", 73, 1, 74, 1),
    Sketcher.Constraint("Tangent", 74, 2, 75, 2),
    Sketcher.Constraint("Coincident", 75, 1, 76, 1),
    Sketcher.Constraint("Tangent", 76, 2, 77, 2),
    Sketcher.Constraint("Tangent", 77, 1, 78, 1),
    Sketcher.Constraint("Coincident", 78, 2, 79, 1),
    Sketcher.Constraint("Coincident", 79, 2, 80, 1),
    Sketcher.Constraint("Coincident", 80, 2, 81, 1),
    Sketcher.Constraint("Coincident", 81, 2, 82, 1),
    Sketcher.Constraint("Coincident", 82, 2, 83, 1),
    Sketcher.Constraint("Coincident", 83, 2, 84, 1),
    Sketcher.Constraint("Tangent", 84, 2, 85, 1),
    Sketcher.Constraint("Tangent", 85, 2, 86, 1),
    Sketcher.Constraint("Tangent", 86, 2, 87, 1),
    Sketcher.Constraint("Tangent", 87, 2, 0, 1),
    Sketcher.Constraint("Horizontal", 0),
    Sketcher.Constraint("Vertical", 2),
    Sketcher.Constraint("Horizontal", 6),
    Sketcher.Constraint("Vertical", 10),
    Sketcher.Constraint("Horizontal", 12),
    Sketcher.Constraint("Vertical", 14),
    Sketcher.Constraint("Horizontal", 16),
    Sketcher.Constraint("Vertical", 18),
    Sketcher.Constraint("Horizontal", 20),
    Sketcher.Constraint("Vertical", 22),
    Sketcher.Constraint("Horizontal", 24),
    Sketcher.Constraint("Vertical", 28),
    Sketcher.Constraint("Horizontal", 32),
    Sketcher.Constraint("Vertical", 34),
    Sketcher.Constraint("Horizontal", 36),
    Sketcher.Constraint("Vertical", 38),
    Sketcher.Constraint("Horizontal", 40),
    Sketcher.Constraint("Vertical", 42),
    Sketcher.Constraint("Horizontal", 44),
    Sketcher.Constraint("Vertical", 46),
    Sketcher.Constraint("Horizontal", 50),
    Sketcher.Constraint("Vertical", 54),
    Sketcher.Constraint("Horizontal", 56),
    Sketcher.Constraint("Vertical", 58),
    Sketcher.Constraint("Horizontal", 60),
    Sketcher.Constraint("Vertical", 62),
    Sketcher.Constraint("Horizontal", 64),
    Sketcher.Constraint("Vertical", 66),
    Sketcher.Constraint("Vertical", 72),
    Sketcher.Constraint("Horizontal", 76),
    Sketcher.Constraint("Vertical", 78),
    Sketcher.Constraint("Horizontal", 80),
    Sketcher.Constraint("Vertical", 82),
    Sketcher.Constraint("Horizontal", 84),
    Sketcher.Constraint("Vertical", 86),
    Sketcher.Constraint("Coincident", 88, 3, -1, 1),
    Sketcher.Constraint("Equal", 5, 7),
    Sketcher.Constraint("Equal", 3, 9),
    Sketcher.Constraint("Equal", 1, 11),
    Sketcher.Constraint("Equal", 11, 13),
    Sketcher.Constraint("Equal", 13, 15),
    Sketcher.Constraint("Equal", 15, 19),
    Sketcher.Constraint("Equal", 19, 21),
    Sketcher.Constraint("Equal", 21, 23),
    Sketcher.Constraint("Equal", 9, 25),
    Sketcher.Constraint("Equal", 27, 29),
    Sketcher.Constraint("Equal", 25, 31),
    Sketcher.Constraint("Equal", 23, 33),
    Sketcher.Constraint("Equal", 33, 35),
    Sketcher.Constraint("Equal", 35, 37),
    Sketcher.Constraint("Equal", 17, 39),
    Sketcher.Constraint("Equal", 37, 41),
    Sketcher.Constraint("Equal", 41, 43),
    Sketcher.Constraint("Equal", 43, 45),
    Sketcher.Constraint("Equal", 31, 47),
    Sketcher.Constraint("Equal", 7, 49),
    Sketcher.Constraint("Equal", 49, 51),
    Sketcher.Constraint("Equal", 47, 53),
    Sketcher.Constraint("Equal", 45, 55),
    Sketcher.Constraint("Equal", 55, 57),
    Sketcher.Constraint("Equal", 57, 59),
    Sketcher.Constraint("Equal", 39, 61),
    Sketcher.Constraint("Equal", 59, 63),
    Sketcher.Constraint("Equal", 63, 65),
    Sketcher.Constraint("Equal", 65, 67),
    Sketcher.Constraint("Equal", 53, 69),
    Sketcher.Constraint("Equal", 29, 71),
    Sketcher.Constraint("Equal", 71, 73),
    Sketcher.Constraint("Equal", 69, 75),
    Sketcher.Constraint("Equal", 67, 77),
    Sketcher.Constraint("Equal", 77, 79),
    Sketcher.Constraint("Equal", 79, 81),
    Sketcher.Constraint("Equal", 61, 83),
    Sketcher.Constraint("Equal", 81, 85),
    Sketcher.Constraint("Equal", 85, 87),
    Sketcher.Constraint("Symmetric", 1, 3, 45, 3, -1, 1),
    Sketcher.Constraint("Symmetric", 5, 3, 49, 3, -1, 1),
    Sketcher.Constraint("Symmetric", 9, 3, 53, 3, -1, 1),
    Sketcher.Constraint("Symmetric", 13, 3, 57, 3, -1, 1),
    Sketcher.Constraint("Symmetric", 17, 3, 61, 3, -1, 1),
    Sketcher.Constraint("Symmetric", 27, 3, 71, 3, -1, 1),
    Sketcher.Constraint("Symmetric", 31, 3, 75, 3, -1, 1),
    Sketcher.Constraint("Symmetric", 41, 3, 85, 3, -1, 1),
    Sketcher.Constraint("Symmetric", 3, 3, 9, 3, -2),
    Sketcher.Constraint("Symmetric", 43, 3, 57, 3, -2),
    Sketcher.Constraint("Symmetric", 39, 3, 61, 3, -2),
    Sketcher.Constraint("Symmetric", 23, 3, 77, 3, -2),
    Sketcher.Constraint("Symmetric", 48, 2, 51, 1, -2),
    Sketcher.Constraint("Symmetric", 29, 1, 70, 2, -2),
    Sketcher.Constraint("Symmetric", 26, 2, 73, 1, -2),
    Sketcher.Constraint("Symmetric", 21, 3, 35, 3, -1),
    Sketcher.Constraint("Perpendicular", 4, 8),
    Sketcher.Constraint("Parallel", 8, 26),
    Sketcher.Constraint("Perpendicular", 26, 30),
    Sketcher.Constraint("Horizontal", 78, 2, 81, 2),
    Sketcher.Constraint("Vertical", 64, 2, 79, 2),
    Sketcher.Constraint("Vertical", 63, 2, 80, 2),
    Sketcher.Constraint("Vertical", 62, 2, 81, 2),
    Sketcher.Constraint("Equal", 60, 18),
    Sketcher.Constraint("Diameter", 88, 6.8),
    Sketcher.Constraint("Angle", 68, Q("-2 deg")),
    Sketcher.Constraint("Radius", 1, 1.57),
    Sketcher.Constraint("Radius", 3, 0.76),
    Sketcher.Constraint("Radius", 17, 3.17),
    Sketcher.Constraint("Radius", 27, 4.75),
    Sketcher.Constraint("DistanceX", 16, 1, 16, 2, 11.2),
    Sketcher.Constraint("DistanceY", 15, 2, -1, 1, 20.0),
    Sketcher.Constraint("DistanceX", -1, 1, 17, 2, 20.0),
    Sketcher.Constraint("DistanceX", 64, 1, 64, 2, 1.18),
    Sketcher.Constraint("DistanceX", 0, 2, 0, 1, 3.085),
    Sketcher.Constraint("Radius", 5, 4.864551),
    Sketcher.Constraint("DistanceY", 22, 2, 22, 1, 3.085399),
    Sketcher.Constraint("DistanceX", -1, 1, 27, 3, 12.435),
    Sketcher.Constraint("DistanceY", 5, 1, -1, 1, 7.685),
    Sketcher.Constraint("DistanceY", -1, 1, 68, 2, 10.033001),
    Sketcher.Constraint("DistanceX", 6, 1, 6, 2, 5.554671),
    Sketcher.Constraint("DistanceX", 24, 2, 24, 1, 0.489942),
    Sketcher.Constraint("DistanceY", 2, 1, 2, 2, 0.462111),
    Sketcher.Constraint("DistanceY", 28, 1, 28, 2, 5.001569),
    Sketcher.Constraint("DistanceY", 62, 2, 62, 1, 11.257021),
    Sketcher.Constraint("DistanceY", 78, 1, 78, 2, 2.95748),
    Sketcher.Constraint("DistanceY", 82, 2, 82, 1, 11.260449),
    Sketcher.Constraint("DistanceX", 68, 2, -1, 1, 13.719899),
    Sketcher.Constraint("DistanceX", 75, 1, -1, 1, 13.816899),
    Sketcher.Constraint("DistanceX", 20, 2, 20, 1, 1.180004),
    Sketcher.Constraint("DistanceX", 84, 1, 84, 2, 11.044615),
    Sketcher.Constraint("DistanceX", -1, 1, 25, 3, 13.811732),
    Sketcher.Constraint("DistanceY", 79, 3, -1, 1, 5.690449),
])
sketch1.setExpression("Constraints[187]", "Params.sketch1_diameter")
sketch1.setExpression("Constraints[189]", "Params.sketch1_radius")
sketch1.setExpression("Constraints[190]", "Params.sketch1_radius2")
sketch1.setExpression("Constraints[191]", "Params.sketch1_radius3")
sketch1.setExpression("Constraints[192]", "Params.sketch1_radius4")
pad1 = body.newObject("PartDesign::Pad", "Pad")
pad1.Profile = sketch1
pad1.setExpression("Length", "Params.pad1_length")
pad1.Reversed = True

doc.recompute()
